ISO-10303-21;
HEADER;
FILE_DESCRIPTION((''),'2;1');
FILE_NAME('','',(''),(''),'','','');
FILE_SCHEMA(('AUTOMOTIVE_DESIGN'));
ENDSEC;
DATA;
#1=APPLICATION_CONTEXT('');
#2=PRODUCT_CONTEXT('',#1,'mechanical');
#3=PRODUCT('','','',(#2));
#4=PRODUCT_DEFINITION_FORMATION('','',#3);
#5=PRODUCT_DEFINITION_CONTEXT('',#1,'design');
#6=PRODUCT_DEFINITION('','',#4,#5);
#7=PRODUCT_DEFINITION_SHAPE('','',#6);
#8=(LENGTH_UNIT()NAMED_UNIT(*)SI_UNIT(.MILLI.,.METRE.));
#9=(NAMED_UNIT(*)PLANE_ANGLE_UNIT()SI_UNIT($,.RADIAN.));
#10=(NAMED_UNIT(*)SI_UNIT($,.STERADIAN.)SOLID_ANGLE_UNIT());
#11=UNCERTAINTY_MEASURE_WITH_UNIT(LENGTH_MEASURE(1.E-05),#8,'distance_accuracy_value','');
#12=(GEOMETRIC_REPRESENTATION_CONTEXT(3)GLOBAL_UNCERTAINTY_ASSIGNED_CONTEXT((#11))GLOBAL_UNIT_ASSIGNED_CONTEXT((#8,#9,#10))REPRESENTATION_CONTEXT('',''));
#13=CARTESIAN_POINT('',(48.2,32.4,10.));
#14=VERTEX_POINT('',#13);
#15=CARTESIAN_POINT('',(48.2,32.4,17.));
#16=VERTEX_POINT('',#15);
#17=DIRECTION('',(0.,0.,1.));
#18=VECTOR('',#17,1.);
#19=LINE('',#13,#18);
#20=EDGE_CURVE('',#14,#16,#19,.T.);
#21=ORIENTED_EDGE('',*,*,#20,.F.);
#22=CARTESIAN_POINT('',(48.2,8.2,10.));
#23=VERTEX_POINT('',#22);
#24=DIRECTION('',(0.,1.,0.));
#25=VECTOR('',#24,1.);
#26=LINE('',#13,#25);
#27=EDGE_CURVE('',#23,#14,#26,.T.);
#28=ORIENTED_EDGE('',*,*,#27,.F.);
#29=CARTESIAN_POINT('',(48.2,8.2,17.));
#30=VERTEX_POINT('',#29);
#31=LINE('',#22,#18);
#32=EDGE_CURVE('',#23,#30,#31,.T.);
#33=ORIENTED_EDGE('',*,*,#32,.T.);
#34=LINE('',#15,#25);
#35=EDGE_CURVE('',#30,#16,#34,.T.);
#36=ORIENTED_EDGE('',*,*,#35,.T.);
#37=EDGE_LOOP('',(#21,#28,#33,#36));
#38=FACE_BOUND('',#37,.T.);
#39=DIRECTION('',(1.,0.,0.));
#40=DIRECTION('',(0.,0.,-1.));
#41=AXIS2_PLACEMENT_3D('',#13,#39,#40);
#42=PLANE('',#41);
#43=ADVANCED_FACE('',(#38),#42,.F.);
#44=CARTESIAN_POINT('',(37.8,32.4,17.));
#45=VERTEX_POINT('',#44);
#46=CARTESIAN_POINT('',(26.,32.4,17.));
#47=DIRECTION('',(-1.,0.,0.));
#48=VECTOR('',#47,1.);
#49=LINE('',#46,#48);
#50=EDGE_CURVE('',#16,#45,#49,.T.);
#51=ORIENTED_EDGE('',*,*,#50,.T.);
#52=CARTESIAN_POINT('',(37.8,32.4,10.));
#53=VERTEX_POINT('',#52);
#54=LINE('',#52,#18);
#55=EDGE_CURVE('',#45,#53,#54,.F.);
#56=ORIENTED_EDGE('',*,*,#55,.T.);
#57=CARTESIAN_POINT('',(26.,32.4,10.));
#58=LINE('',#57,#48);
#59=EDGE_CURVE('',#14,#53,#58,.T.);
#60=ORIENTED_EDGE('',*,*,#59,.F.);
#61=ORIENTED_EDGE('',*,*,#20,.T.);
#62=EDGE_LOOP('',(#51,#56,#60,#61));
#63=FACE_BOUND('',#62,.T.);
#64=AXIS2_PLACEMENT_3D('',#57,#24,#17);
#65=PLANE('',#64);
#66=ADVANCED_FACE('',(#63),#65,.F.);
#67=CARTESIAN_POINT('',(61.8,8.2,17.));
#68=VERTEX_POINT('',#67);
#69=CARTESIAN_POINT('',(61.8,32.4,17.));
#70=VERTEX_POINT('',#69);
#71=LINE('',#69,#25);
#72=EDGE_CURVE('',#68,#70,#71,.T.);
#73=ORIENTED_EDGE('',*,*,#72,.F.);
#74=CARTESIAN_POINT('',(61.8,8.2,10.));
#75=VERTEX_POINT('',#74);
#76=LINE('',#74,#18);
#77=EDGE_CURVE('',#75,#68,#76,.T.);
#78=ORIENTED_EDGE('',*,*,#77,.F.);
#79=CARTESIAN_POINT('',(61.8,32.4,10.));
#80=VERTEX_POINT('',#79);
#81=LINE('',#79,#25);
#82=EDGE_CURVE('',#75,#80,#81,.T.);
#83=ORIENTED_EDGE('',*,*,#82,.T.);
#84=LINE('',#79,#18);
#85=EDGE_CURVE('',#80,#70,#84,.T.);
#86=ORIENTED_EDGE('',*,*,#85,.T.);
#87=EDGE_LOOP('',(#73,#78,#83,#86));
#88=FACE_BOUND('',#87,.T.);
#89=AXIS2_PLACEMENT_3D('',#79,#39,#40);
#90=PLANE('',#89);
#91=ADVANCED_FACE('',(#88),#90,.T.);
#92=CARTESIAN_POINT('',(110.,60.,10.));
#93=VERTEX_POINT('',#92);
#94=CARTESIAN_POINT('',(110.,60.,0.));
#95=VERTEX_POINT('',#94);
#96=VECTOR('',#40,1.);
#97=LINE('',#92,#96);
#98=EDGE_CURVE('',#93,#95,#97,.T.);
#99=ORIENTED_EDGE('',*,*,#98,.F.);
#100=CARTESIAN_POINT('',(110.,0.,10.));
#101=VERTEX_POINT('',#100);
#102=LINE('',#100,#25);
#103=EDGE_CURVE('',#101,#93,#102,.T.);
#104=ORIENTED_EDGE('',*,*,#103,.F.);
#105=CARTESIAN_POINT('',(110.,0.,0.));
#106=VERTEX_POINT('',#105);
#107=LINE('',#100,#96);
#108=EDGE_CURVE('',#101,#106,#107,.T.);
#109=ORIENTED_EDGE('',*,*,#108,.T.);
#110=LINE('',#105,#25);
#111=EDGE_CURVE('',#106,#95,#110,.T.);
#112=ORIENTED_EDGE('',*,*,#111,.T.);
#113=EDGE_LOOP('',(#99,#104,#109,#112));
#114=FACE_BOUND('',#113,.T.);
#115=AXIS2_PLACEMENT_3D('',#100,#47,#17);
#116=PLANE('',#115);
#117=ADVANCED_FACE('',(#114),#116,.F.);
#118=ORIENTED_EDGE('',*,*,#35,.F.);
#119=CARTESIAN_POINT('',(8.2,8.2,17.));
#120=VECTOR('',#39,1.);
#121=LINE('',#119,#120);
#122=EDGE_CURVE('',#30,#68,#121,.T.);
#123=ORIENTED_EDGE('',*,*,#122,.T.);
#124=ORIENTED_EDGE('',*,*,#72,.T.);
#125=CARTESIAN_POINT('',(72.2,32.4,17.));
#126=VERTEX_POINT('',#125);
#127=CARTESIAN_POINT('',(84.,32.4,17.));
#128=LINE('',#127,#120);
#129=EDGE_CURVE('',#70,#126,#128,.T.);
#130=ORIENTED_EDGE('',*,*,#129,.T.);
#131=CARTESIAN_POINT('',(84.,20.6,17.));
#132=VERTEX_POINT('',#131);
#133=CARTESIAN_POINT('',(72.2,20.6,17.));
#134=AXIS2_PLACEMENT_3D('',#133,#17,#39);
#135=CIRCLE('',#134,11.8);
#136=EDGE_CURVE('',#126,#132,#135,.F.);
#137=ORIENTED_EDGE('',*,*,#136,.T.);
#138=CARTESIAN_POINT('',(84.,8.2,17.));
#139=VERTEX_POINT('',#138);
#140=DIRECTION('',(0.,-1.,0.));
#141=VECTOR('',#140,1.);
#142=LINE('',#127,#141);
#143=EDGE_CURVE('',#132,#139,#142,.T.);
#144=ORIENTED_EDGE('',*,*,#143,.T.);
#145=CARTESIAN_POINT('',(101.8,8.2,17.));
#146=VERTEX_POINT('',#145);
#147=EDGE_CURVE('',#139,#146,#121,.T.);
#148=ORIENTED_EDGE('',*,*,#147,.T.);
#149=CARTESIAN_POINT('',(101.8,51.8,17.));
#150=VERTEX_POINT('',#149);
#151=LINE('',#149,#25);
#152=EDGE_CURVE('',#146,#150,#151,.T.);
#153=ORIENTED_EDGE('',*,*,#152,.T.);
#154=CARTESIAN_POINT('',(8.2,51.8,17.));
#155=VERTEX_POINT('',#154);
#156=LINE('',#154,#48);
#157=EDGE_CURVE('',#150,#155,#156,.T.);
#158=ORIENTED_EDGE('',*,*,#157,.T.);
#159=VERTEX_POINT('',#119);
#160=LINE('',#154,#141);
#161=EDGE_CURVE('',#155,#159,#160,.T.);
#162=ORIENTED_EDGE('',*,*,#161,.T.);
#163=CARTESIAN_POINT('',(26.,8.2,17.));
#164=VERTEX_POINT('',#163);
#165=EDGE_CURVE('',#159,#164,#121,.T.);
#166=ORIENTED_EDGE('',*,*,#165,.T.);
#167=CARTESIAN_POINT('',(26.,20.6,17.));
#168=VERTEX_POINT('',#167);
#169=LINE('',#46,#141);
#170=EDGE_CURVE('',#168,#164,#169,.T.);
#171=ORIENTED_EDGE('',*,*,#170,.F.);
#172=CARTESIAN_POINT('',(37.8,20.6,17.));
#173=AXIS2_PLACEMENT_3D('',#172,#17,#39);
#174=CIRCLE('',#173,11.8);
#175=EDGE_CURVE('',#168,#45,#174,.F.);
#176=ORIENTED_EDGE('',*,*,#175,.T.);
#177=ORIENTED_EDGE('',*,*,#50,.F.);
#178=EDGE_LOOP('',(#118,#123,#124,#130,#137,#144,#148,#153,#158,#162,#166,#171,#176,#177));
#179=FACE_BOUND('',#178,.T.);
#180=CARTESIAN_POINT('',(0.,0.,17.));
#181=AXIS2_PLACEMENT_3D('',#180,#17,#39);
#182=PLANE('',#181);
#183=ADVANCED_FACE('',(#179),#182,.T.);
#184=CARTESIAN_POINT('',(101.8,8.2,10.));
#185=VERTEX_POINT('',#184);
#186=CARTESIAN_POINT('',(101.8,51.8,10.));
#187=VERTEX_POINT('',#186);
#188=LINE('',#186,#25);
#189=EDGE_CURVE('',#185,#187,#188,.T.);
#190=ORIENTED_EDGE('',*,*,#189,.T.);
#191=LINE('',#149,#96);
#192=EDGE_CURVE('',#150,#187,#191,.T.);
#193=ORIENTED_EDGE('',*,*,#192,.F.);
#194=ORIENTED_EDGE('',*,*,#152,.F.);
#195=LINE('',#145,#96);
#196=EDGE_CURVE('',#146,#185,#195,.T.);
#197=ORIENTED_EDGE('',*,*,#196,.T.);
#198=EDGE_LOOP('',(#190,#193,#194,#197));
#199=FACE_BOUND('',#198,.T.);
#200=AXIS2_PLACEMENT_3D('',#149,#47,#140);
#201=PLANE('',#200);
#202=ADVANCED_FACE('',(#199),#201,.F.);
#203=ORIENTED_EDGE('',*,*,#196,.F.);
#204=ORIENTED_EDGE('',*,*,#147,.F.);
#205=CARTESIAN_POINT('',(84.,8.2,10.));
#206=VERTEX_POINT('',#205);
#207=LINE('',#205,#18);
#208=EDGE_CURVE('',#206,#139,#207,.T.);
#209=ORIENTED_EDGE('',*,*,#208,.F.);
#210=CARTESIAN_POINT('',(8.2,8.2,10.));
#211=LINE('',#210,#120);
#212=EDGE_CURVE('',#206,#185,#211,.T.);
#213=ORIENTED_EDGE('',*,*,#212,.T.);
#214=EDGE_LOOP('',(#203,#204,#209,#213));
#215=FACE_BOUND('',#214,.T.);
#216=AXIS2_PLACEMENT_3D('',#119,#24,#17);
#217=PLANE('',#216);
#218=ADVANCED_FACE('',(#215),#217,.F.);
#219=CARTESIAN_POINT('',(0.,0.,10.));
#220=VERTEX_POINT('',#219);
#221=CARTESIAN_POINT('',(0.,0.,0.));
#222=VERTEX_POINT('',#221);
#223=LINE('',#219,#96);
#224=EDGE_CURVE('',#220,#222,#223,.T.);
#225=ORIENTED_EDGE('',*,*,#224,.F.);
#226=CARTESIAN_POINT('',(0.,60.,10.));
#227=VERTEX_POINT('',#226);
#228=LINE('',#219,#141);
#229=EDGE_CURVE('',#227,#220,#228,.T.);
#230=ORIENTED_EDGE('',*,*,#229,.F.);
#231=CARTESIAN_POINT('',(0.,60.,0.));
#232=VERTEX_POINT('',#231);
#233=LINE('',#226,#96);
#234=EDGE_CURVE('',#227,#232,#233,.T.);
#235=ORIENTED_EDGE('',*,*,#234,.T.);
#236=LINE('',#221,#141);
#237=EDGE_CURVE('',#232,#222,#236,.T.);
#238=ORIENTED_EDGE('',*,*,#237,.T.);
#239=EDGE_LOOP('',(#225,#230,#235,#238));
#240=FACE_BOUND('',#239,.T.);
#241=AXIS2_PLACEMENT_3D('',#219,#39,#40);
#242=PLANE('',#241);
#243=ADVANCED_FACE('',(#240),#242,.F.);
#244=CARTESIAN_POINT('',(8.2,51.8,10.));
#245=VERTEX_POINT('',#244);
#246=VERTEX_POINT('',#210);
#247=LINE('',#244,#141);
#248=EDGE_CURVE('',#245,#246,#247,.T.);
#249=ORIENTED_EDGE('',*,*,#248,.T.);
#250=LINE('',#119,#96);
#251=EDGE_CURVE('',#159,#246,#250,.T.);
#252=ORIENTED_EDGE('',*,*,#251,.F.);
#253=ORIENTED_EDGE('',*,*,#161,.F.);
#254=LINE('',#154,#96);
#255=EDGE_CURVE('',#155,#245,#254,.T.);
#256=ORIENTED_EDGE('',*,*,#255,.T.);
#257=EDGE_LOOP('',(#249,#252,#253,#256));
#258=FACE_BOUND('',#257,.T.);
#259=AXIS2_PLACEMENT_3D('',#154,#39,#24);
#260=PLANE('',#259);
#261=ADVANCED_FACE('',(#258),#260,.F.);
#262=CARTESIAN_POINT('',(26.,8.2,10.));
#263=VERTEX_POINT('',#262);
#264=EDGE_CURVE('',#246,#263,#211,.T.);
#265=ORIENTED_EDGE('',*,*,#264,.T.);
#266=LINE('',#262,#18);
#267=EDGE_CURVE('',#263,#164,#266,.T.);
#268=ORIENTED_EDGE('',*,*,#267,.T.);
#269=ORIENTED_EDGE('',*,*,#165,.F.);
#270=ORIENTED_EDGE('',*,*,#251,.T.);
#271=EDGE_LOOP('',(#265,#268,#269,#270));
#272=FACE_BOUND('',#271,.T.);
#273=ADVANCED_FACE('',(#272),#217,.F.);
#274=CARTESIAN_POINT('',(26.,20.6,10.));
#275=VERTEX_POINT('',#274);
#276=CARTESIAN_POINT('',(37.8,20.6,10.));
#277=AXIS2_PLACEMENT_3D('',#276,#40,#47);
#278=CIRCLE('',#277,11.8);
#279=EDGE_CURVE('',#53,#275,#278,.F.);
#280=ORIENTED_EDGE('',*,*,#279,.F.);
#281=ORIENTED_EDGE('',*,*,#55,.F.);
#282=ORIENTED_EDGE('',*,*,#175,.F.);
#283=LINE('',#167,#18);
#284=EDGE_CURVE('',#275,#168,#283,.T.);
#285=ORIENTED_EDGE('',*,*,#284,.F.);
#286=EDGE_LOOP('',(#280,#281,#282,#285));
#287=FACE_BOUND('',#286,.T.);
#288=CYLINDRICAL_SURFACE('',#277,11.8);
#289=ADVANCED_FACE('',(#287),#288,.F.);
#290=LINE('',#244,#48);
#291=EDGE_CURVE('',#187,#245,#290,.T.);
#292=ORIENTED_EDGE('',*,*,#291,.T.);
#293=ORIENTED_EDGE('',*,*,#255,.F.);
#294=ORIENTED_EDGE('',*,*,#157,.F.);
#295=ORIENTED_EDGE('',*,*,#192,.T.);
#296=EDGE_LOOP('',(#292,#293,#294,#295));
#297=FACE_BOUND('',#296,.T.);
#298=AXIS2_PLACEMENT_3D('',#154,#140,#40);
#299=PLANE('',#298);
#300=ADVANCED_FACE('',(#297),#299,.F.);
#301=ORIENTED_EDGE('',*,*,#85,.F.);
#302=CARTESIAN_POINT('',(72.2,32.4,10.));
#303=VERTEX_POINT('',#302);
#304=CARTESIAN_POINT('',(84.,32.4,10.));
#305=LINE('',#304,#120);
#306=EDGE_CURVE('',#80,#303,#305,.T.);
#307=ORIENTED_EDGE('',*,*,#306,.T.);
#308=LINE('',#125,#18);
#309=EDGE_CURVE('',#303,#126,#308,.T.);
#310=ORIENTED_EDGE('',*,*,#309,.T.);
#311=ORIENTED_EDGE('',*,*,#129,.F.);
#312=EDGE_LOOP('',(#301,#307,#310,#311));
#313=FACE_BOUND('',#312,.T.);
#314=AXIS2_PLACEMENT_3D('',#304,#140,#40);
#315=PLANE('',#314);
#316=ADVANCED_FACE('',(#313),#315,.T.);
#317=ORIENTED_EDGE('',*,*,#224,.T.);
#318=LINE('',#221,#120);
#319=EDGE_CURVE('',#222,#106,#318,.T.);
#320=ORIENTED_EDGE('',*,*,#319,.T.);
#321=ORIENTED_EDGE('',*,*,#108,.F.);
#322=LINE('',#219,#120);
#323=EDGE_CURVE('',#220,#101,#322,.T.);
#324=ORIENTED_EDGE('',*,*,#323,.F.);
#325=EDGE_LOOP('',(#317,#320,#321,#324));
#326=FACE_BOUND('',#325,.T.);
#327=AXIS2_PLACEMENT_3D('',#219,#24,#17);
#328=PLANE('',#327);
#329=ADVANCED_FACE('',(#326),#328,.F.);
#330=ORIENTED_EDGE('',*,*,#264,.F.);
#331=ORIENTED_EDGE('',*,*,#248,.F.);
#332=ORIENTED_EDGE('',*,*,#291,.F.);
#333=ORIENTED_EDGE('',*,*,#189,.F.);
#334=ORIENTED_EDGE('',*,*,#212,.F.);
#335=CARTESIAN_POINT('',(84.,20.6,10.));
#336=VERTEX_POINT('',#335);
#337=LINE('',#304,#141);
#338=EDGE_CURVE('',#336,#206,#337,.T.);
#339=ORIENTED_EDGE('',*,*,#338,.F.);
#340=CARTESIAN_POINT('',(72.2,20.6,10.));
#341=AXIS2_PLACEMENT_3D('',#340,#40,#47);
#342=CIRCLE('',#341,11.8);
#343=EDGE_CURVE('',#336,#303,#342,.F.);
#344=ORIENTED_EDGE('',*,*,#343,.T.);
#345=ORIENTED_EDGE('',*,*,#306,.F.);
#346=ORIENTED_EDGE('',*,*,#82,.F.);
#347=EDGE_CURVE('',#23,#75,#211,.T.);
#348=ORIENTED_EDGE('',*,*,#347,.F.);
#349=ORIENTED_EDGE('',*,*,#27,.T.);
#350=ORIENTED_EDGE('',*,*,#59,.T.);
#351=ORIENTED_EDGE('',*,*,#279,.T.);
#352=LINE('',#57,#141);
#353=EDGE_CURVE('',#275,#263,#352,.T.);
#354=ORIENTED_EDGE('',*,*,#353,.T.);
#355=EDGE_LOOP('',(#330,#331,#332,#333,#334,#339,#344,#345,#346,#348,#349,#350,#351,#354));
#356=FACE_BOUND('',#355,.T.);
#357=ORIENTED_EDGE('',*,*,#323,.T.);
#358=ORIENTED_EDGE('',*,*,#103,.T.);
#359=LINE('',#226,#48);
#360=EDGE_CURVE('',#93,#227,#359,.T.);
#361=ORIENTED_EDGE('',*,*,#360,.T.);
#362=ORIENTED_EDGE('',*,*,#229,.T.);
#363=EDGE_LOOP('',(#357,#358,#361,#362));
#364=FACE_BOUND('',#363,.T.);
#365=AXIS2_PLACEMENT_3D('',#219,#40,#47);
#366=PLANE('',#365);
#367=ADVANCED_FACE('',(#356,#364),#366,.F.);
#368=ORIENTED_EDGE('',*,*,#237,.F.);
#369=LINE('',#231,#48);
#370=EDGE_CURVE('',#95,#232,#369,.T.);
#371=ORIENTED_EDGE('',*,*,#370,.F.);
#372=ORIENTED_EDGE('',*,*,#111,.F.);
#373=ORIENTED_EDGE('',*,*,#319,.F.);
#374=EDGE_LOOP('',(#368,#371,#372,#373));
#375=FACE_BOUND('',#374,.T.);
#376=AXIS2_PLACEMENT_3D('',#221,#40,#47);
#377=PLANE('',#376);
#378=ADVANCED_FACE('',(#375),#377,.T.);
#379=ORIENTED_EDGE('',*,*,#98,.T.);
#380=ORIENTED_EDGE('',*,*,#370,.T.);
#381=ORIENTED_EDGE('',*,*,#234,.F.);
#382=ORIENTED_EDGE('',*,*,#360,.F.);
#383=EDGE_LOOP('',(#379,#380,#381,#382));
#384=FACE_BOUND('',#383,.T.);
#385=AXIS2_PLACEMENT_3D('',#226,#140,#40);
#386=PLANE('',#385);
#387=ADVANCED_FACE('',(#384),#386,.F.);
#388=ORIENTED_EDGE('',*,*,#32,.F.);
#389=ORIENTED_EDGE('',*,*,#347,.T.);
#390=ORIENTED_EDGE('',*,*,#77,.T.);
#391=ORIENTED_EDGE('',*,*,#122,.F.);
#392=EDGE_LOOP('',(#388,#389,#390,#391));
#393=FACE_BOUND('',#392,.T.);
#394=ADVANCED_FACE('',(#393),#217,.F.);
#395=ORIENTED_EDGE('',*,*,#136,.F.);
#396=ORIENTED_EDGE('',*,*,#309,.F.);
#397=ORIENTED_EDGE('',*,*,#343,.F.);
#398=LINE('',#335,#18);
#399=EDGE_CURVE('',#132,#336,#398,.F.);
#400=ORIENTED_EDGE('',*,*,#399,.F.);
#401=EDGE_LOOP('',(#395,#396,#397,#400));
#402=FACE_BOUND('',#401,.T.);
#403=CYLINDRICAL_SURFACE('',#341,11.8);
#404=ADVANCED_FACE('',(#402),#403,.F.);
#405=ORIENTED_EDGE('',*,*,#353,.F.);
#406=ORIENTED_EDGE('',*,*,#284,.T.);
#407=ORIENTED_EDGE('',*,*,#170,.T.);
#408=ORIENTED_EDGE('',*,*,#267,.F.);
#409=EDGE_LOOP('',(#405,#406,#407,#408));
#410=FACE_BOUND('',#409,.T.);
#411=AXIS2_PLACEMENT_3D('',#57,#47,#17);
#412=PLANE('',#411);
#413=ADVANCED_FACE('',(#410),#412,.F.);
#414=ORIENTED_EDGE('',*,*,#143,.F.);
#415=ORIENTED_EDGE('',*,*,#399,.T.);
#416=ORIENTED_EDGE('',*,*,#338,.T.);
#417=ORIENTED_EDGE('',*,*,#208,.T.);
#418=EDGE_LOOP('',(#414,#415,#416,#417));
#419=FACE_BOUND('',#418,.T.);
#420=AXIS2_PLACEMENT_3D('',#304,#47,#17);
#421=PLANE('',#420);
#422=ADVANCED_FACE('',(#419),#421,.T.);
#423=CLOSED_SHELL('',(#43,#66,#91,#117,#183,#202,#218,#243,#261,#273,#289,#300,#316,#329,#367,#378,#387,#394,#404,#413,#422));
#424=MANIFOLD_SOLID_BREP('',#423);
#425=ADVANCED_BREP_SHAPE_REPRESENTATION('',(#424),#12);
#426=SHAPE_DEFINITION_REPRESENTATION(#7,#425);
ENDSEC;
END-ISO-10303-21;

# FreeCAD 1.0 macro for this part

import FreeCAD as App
import Part
import Sketcher
from FreeCAD import Vector
Q = App.Units.Quantity


def edges_at(feature, points):
    """Names of the edges that pass closest to the given points."""
    edges = feature.Shape.Edges
    near = lambda p: min(range(len(edges)), key=lambda i: edges[i].distToShape(Part.Vertex(*p))[0])
    return sorted({f"Edge{near(p) + 1}" for p in points})

doc = App.newDocument("Part")
params = doc.addObject("Spreadsheet::Sheet", "Params")
for row, (alias, value) in enumerate([
    ("sketch1_width", "110 mm"),
    ("sketch1_height", "60 mm"),
    ("pad1_length", "10 mm"),
    ("sketch2_width", "93.6 mm"),
    ("sketch2_height", "43.6 mm"),
    ("pad2_length", "7 mm"),
    ("sketch3_width", "22.2 mm"),
    ("sketch3_height", "24.2 mm"),
    ("pocket1_length", "7 mm"),
    ("fillet_radius", "11.8 mm"),
    ("fillet2_radius", "11.8 mm"),
], start=1):
    params.set(f"A{row}", alias)
    params.set(f"B{row}", "=" + value)
    params.setAlias(f"B{row}", alias)

body = doc.addObject("PartDesign::Body", "Body")

# Sketch on XY plane
sketch1 = body.newObject("Sketcher::SketchObject", "Sketch")
sketch1.AttachmentSupport = (doc.getObject("XY_Plane"), [""])
sketch1.MapMode = "FlatFace"
sketch1.addGeometry(Part.LineSegment(Vector(0, 60, 0), Vector(0, 0, 0)), False)
sketch1.addGeometry(Part.LineSegment(Vector(0, 0, 0), Vector(110, 0, 0)), False)
sketch1.addGeometry(Part.LineSegment(Vector(110, 0, 0), Vector(110, 60, 0)), False)
sketch1.addGeometry(Part.LineSegment(Vector(110, 60, 0), Vector(0, 60, 0)), False)
sketch1.addConstraint(Sketcher.Constraint("Coincident", 0, 2, 1, 1))
sketch1.addConstraint(Sketcher.Constraint("Coincident", 1, 2, 2, 1))
sketch1.addConstraint(Sketcher.Constraint("Coincident", 2, 2, 3, 1))
sketch1.addConstraint(Sketcher.Constraint("Coincident", 3, 2, 0, 1))
sketch1.addConstraint(Sketcher.Constraint("Vertical", 0))
sketch1.addConstraint(Sketcher.Constraint("Horizontal", 1))
sketch1.addConstraint(Sketcher.Constraint("Vertical", 2))
sketch1.addConstraint(Sketcher.Constraint("Horizontal", 3))
sketch1.addConstraint(Sketcher.Constraint("Coincident", 0, 2, -1, 1))
sketch1.addConstraint(Sketcher.Constraint("DistanceX", 1, 1, 1, 2, Q("110 mm")))
sketch1.addConstraint(Sketcher.Constraint("DistanceY", 0, 2, 0, 1, Q("60 mm")))
sketch1.setExpression("Constraints[9]", "Params.sketch1_width")
sketch1.setExpression("Constraints[10]", "Params.sketch1_height")
pad1 = body.newObject("PartDesign::Pad", "Pad")
pad1.Profile = sketch1
pad1.setExpression("Length", "Params.pad1_length")

# Sketch on XY plane
sketch2 = body.newObject("Sketcher::SketchObject", "Sketch001")
sketch2.AttachmentSupport = (doc.getObject("XY_Plane"), [""])
sketch2.MapMode = "FlatFace"
sketch2.AttachmentOffset = App.Placement(Vector(0, 0, 10), App.Rotation())
sketch2.addGeometry(Part.LineSegment(Vector(8, 52, 0), Vector(8, 8, 0)), False)
sketch2.addGeometry(Part.LineSegment(Vector(8, 8, 0), Vector(102, 8, 0)), False)
sketch2.addGeometry(Part.LineSegment(Vector(102, 8, 0), Vector(102, 52, 0)), False)
sketch2.addGeometry(Part.LineSegment(Vector(102, 52, 0), Vector(8, 52, 0)), False)
sketch2.addConstraint(Sketcher.Constraint("Coincident", 0, 2, 1, 1))
sketch2.addConstraint(Sketcher.Constraint("Coincident", 1, 2, 2, 1))
sketch2.addConstraint(Sketcher.Constraint("Coincident", 2, 2, 3, 1))
sketch2.addConstraint(Sketcher.Constraint("Coincident", 3, 2, 0, 1))
sketch2.addConstraint(Sketcher.Constraint("Vertical", 0))
sketch2.addConstraint(Sketcher.Constraint("Horizontal", 1))
sketch2.addConstraint(Sketcher.Constraint("Vertical", 2))
sketch2.addConstraint(Sketcher.Constraint("Horizontal", 3))
sketch2.addConstraint(Sketcher.Constraint("DistanceX", 1, 1, 1, 2, Q("93.6 mm")))
sketch2.addConstraint(Sketcher.Constraint("DistanceY", 0, 2, 0, 1, Q("43.6 mm")))
sketch2.addConstraint(Sketcher.Constraint("DistanceX", -1, 1, 0, 2, Q("8.2 mm")))
sketch2.addConstraint(Sketcher.Constraint("DistanceY", -1, 1, 0, 2, Q("8.2 mm")))
sketch2.setExpression("Constraints[8]", "Params.sketch2_width")
sketch2.setExpression("Constraints[9]", "Params.sketch2_height")
pad2 = body.newObject("PartDesign::Pad", "Pad001")
pad2.Profile = sketch2
pad2.setExpression("Length", "Params.pad2_length")

# Sketch on XY plane
sketch3 = body.newObject("Sketcher::SketchObject", "Sketch002")
sketch3.AttachmentSupport = (doc.getObject("XY_Plane"), [""])
sketch3.MapMode = "FlatFace"
sketch3.AttachmentOffset = App.Placement(Vector(0, 0, 17), App.Rotation())
sketch3.addGeometry(Part.LineSegment(Vector(26, 32, 0), Vector(26, 8, 0)), False)
sketch3.addGeometry(Part.LineSegment(Vector(26, 8, 0), Vector(48, 8, 0)), False)
sketch3.addGeometry(Part.LineSegment(Vector(48, 8, 0), Vector(48, 32, 0)), False)
sketch3.addGeometry(Part.LineSegment(Vector(48, 32, 0), Vector(26, 32, 0)), False)
sketch3.addConstraint(Sketcher.Constraint("Coincident", 0, 2, 1, 1))
sketch3.addConstraint(Sketcher.Constraint("Coincident", 1, 2, 2, 1))
sketch3.addConstraint(Sketcher.Constraint("Coincident", 2, 2, 3, 1))
sketch3.addConstraint(Sketcher.Constraint("Coincident", 3, 2, 0, 1))
sketch3.addConstraint(Sketcher.Constraint("Vertical", 0))
sketch3.addConstraint(Sketcher.Constraint("Horizontal", 1))
sketch3.addConstraint(Sketcher.Constraint("Vertical", 2))
sketch3.addConstraint(Sketcher.Constraint("Horizontal", 3))
sketch3.addConstraint(Sketcher.Constraint("DistanceX", 1, 1, 1, 2, Q("22.2 mm")))
sketch3.addConstraint(Sketcher.Constraint("DistanceY", 0, 2, 0, 1, Q("24.2 mm")))
sketch3.addConstraint(Sketcher.Constraint("DistanceX", -1, 1, 0, 2, Q("26 mm")))
sketch3.addConstraint(Sketcher.Constraint("DistanceY", -1, 1, 0, 2, Q("8.2 mm")))
sketch3.setExpression("Constraints[8]", "Params.sketch3_width")
sketch3.setExpression("Constraints[9]", "Params.sketch3_height")
pocket1 = body.newObject("PartDesign::Pocket", "Pocket")
pocket1.Profile = sketch3
pocket1.setExpression("Length", "Params.pocket1_length")
doc.recompute()

fillet = body.newObject("PartDesign::Fillet", "Fillet")
fillet.Base = (pocket1, edges_at(pocket1, [(26, 32.4, 13.5)]))
fillet.setExpression("Radius", "Params.fillet_radius")
doc.recompute()

datumplane = body.newObject("PartDesign::Plane", "DatumPlane")
datumplane.AttachmentSupport = (doc.getObject("YZ_Plane"), [""])
datumplane.MapMode = "FlatFace"
datumplane.AttachmentOffset = App.Placement(Vector(0, 0, 55), App.Rotation())
mirrored = body.newObject("PartDesign::Mirrored", "Mirrored")
mirrored.Originals = [pocket1]
mirrored.MirrorPlane = (datumplane, [""])
body.Tip = mirrored
doc.recompute()

fillet2 = body.newObject("PartDesign::Fillet", "Fillet001")
fillet2.Base = (mirrored, edges_at(mirrored, [(84, 32.4, 13.5)]))
fillet2.setExpression("Radius", "Params.fillet2_radius")

doc.recompute()
